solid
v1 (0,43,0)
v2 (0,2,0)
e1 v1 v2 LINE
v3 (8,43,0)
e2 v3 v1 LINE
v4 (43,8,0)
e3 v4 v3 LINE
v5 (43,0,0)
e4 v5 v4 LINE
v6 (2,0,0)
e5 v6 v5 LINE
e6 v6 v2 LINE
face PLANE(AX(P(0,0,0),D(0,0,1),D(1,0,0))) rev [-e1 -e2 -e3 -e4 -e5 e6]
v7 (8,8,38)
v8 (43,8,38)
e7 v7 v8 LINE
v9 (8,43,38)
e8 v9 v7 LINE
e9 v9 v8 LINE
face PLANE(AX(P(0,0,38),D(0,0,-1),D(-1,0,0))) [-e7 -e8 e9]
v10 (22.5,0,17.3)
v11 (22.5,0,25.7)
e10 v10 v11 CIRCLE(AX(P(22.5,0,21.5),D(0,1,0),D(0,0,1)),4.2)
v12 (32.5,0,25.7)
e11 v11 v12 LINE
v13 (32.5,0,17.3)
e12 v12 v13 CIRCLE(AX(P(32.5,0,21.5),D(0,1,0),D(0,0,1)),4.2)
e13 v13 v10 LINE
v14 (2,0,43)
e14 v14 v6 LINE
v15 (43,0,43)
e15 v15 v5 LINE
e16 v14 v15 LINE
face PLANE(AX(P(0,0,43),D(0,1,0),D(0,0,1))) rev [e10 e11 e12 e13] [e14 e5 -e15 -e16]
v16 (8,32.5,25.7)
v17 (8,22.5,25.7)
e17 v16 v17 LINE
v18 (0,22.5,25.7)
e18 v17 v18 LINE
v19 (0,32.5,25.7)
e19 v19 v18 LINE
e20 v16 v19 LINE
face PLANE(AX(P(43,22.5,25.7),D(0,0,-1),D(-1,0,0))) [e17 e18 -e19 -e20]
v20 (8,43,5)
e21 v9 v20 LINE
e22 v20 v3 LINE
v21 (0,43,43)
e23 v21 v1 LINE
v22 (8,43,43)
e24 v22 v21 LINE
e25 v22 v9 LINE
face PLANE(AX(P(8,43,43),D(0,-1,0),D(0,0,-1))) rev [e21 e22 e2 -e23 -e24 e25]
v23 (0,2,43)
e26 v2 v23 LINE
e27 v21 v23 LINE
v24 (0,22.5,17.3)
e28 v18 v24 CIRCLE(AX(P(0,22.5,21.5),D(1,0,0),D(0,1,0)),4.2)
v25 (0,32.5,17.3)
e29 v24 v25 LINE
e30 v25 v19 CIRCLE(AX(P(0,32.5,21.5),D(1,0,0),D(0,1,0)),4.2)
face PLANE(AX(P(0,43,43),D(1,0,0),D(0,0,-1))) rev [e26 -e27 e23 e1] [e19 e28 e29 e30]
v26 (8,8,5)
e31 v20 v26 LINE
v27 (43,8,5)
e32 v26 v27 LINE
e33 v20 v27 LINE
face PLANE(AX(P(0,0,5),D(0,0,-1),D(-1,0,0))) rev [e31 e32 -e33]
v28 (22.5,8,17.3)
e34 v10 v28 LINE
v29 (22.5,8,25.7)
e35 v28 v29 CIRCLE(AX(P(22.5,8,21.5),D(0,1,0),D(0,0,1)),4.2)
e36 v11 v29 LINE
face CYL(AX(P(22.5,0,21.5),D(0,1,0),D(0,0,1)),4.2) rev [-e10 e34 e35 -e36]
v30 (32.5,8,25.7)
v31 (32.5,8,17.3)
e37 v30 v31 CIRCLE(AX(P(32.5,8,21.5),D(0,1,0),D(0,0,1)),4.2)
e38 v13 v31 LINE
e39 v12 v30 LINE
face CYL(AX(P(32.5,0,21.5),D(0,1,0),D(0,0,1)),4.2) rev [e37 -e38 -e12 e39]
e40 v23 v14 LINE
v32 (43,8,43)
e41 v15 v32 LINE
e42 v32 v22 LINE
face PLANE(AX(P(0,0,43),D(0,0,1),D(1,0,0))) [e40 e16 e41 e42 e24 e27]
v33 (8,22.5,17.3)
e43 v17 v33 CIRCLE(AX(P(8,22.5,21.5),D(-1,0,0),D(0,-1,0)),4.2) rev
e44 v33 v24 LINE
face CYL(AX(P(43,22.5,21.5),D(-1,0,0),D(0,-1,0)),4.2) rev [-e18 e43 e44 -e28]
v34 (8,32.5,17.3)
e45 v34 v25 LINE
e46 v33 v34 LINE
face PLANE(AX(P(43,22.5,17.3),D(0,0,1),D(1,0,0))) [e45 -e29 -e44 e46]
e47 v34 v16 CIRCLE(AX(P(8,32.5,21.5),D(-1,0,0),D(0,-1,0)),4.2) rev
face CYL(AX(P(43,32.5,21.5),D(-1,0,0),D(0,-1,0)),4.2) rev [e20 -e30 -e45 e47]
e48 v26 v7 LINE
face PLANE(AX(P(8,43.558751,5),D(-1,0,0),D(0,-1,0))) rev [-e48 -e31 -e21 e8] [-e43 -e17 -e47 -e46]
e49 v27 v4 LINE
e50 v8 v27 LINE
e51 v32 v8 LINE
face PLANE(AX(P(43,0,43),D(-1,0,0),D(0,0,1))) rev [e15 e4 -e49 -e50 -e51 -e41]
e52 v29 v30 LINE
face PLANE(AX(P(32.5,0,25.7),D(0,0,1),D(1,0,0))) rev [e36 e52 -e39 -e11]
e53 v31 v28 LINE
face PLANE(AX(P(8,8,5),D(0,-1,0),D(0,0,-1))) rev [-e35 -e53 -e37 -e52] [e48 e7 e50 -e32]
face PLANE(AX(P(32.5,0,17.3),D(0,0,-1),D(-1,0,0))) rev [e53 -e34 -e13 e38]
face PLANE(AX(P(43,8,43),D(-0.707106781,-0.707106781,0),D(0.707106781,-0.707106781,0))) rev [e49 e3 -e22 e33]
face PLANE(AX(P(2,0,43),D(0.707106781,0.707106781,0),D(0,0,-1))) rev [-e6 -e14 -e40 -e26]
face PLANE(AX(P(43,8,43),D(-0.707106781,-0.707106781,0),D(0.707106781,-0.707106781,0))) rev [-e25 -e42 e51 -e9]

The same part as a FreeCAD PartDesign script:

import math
import FreeCAD as App
import Part
import Sketcher

V = App.Vector
Q = App.Units.Quantity


def edges_at(feature, points):
    """Names of the edges that pass closest to the given points."""
    edges = feature.Shape.Edges
    near = lambda p: min(range(len(edges)), key=lambda i: edges[i].distToShape(Part.Vertex(*p))[0])
    return sorted({f"Edge{near(p) + 1}" for p in points})

doc = App.newDocument("Part")
body = doc.addObject("PartDesign::Body", "Body")

sketch1 = body.newObject("Sketcher::SketchObject", "Sketch")
sketch1.AttachmentSupport = (doc.getObject("XY_Plane"), [""])
sketch1.MapMode = "FlatFace"
sketch1.addGeometry(Part.LineSegment(V(0, 43, 0), V(0, 0, 0)), False)
sketch1.addGeometry(Part.LineSegment(V(0, 0, 0), V(43, 0, 0)), False)
sketch1.addGeometry(Part.LineSegment(V(43, 0, 0), V(43, 8, 0)), False)
sketch1.addGeometry(Part.LineSegment(V(43, 8, 0), V(8, 43, 0)), False)
sketch1.addGeometry(Part.LineSegment(V(8, 43, 0), V(0, 43, 0)), False)
sketch1.addConstraint(Sketcher.Constraint("Coincident", 0, 2, 1, 1))
sketch1.addConstraint(Sketcher.Constraint("Coincident", 1, 2, 2, 1))
sketch1.addConstraint(Sketcher.Constraint("Coincident", 2, 2, 3, 1))
sketch1.addConstraint(Sketcher.Constraint("Coincident", 3, 2, 4, 1))
sketch1.addConstraint(Sketcher.Constraint("Coincident", 4, 2, 0, 1))
sketch1.addConstraint(Sketcher.Constraint("Vertical", 0))
sketch1.addConstraint(Sketcher.Constraint("Horizontal", 1))
sketch1.addConstraint(Sketcher.Constraint("Vertical", 2))
sketch1.addConstraint(Sketcher.Constraint("Horizontal", 4))
sketch1.addConstraint(Sketcher.Constraint("Coincident", 0, 2, -1, 1))
sketch1.addConstraint(Sketcher.Constraint("Equal", 1, 0))
sketch1.addConstraint(Sketcher.Constraint("Equal", 4, 2))
sketch1.addConstraint(Sketcher.Constraint("DistanceX", 1, 1, 1, 2, Q("43 mm")))
sketch1.addConstraint(Sketcher.Constraint("DistanceX", 4, 2, 4, 1, Q("8 mm")))
pad1 = body.newObject("PartDesign::Pad", "Pad")
pad1.Profile = sketch1
pad1.Length = 43

sketch2 = body.newObject("Sketcher::SketchObject", "Sketch001")
sketch2.AttachmentSupport = (doc.getObject("XY_Plane"), [""])
sketch2.MapMode = "FlatFace"
sketch2.AttachmentOffset = App.Placement(V(0, 0, 21.5), App.Rotation())
sketch2.addGeometry(Part.LineSegment(V(8, 44, 0), V(8, 8, 0)), False)
sketch2.addGeometry(Part.LineSegment(V(8, 8, 0), V(48, 8, 0)), False)
sketch2.addGeometry(Part.LineSegment(V(48, 8, 0), V(49, 42, 0)), False)
sketch2.addGeometry(Part.LineSegment(V(49, 42, 0), V(8, 44, 0)), False)
sketch2.addConstraint(Sketcher.Constraint("Coincident", 0, 2, 1, 1))
sketch2.addConstraint(Sketcher.Constraint("Coincident", 1, 2, 2, 1))
sketch2.addConstraint(Sketcher.Constraint("Coincident", 2, 2, 3, 1))
sketch2.addConstraint(Sketcher.Constraint("Coincident", 3, 2, 0, 1))
sketch2.addConstraint(Sketcher.Constraint("Vertical", 0))
sketch2.addConstraint(Sketcher.Constraint("Horizontal", 1))
sketch2.addConstraint(Sketcher.Constraint("Perpendicular", 2, 3))
sketch2.addConstraint(Sketcher.Constraint("DistanceX", -1, 1, 0, 2, Q("8 mm")))
sketch2.addConstraint(Sketcher.Constraint("DistanceY", -1, 1, 0, 2, Q("8 mm")))
sketch2.addConstraint(Sketcher.Constraint("Distance", 3, Q("41.478198 mm")))
sketch2.addConstraint(Sketcher.Constraint("DistanceY", 0, 2, 0, 1, Q("35.558751 mm")))
sketch2.addConstraint(Sketcher.Constraint("DistanceX", 1, 1, 1, 2, Q("39.774907 mm")))
pocket1 = body.newObject("PartDesign::Pocket", "Pocket")
pocket1.Profile = sketch2
pocket1.Length = 33
pocket1.Midplane = True

sketch3 = body.newObject("Sketcher::SketchObject", "Sketch002")
sketch3.AttachmentSupport = (doc.getObject("YZ_Plane"), [""])
sketch3.MapMode = "FlatFace"
sketch3.AttachmentOffset = App.Placement(V(0, 0, 8), App.Rotation())
sketch3.addGeometry(Part.LineSegment(V(32.5, 25.7, 0), V(22.5, 25.7, 0)), False)
sketch3.addGeometry(Part.ArcOfCircle(Part.Circle(V(22.5, 21.5, 0), V(0, 0, 1), 4.2), math.radians(90), math.radians(270)), False)
sketch3.addGeometry(Part.LineSegment(V(22.5, 17.3, 0), V(32.5, 17.3, 0)), False)
sketch3.addGeometry(Part.ArcOfCircle(Part.Circle(V(32.5, 21.5, 0), V(0, 0, 1), 4.2), math.radians(-90), math.radians(90)), False)
sketch3.addConstraint(Sketcher.Constraint("Tangent", 0, 2, 1, 1))
sketch3.addConstraint(Sketcher.Constraint("Tangent", 1, 2, 2, 1))
sketch3.addConstraint(Sketcher.Constraint("Tangent", 2, 2, 3, 1))
sketch3.addConstraint(Sketcher.Constraint("Tangent", 3, 2, 0, 1))
sketch3.addConstraint(Sketcher.Constraint("Horizontal", 0))
sketch3.addConstraint(Sketcher.Constraint("Horizontal", 2))
sketch3.addConstraint(Sketcher.Constraint("Radius", 1, Q("4.2 mm")))
sketch3.addConstraint(Sketcher.Constraint("DistanceX", 0, 2, 0, 1, Q("10 mm")))
sketch3.addConstraint(Sketcher.Constraint("DistanceX", -1, 1, 1, 3, Q("22.5 mm")))
sketch3.addConstraint(Sketcher.Constraint("DistanceY", -1, 1, 1, 3, Q("21.5 mm")))
pocket2 = body.newObject("PartDesign::Pocket", "Pocket001")
pocket2.Profile = sketch3
pocket2.Type = "ThroughAll"
pocket2.Midplane = True

sketch4 = body.newObject("Sketcher::SketchObject", "Sketch003")
sketch4.AttachmentSupport = (doc.getObject("XZ_Plane"), [""])
sketch4.MapMode = "FlatFace"
sketch4.AttachmentOffset = App.Placement(V(0, 0, -8), App.Rotation())
sketch4.addGeometry(Part.LineSegment(V(22.5, 25.7, 0), V(32.5, 25.7, 0)), False)
sketch4.addGeometry(Part.ArcOfCircle(Part.Circle(V(32.5, 21.5, 0), V(0, 0, 1), 4.2), math.radians(-90), math.radians(90)), False)
sketch4.addGeometry(Part.LineSegment(V(32.5, 17.3, 0), V(22.5, 17.3, 0)), False)
sketch4.addGeometry(Part.ArcOfCircle(Part.Circle(V(22.5, 21.5, 0), V(0, 0, 1), 4.2), math.radians(90), math.radians(270)), False)
sketch4.addConstraint(Sketcher.Constraint("Tangent", 0, 2, 1, 2))
sketch4.addConstraint(Sketcher.Constraint("Tangent", 1, 1, 2, 1))
sketch4.addConstraint(Sketcher.Constraint("Tangent", 2, 2, 3, 2))
sketch4.addConstraint(Sketcher.Constraint("Tangent", 3, 1, 0, 1))
sketch4.addConstraint(Sketcher.Constraint("Horizontal", 0))
sketch4.addConstraint(Sketcher.Constraint("Horizontal", 2))
sketch4.addConstraint(Sketcher.Constraint("Radius", 1, Q("4.2 mm")))
sketch4.addConstraint(Sketcher.Constraint("DistanceX", 0, 1, 0, 2, Q("10 mm")))
sketch4.addConstraint(Sketcher.Constraint("DistanceX", -1, 1, 1, 3, Q("32.5 mm")))
sketch4.addConstraint(Sketcher.Constraint("DistanceY", -1, 1, 1, 3, Q("21.5 mm")))
pocket3 = body.newObject("PartDesign::Pocket", "Pocket002")
pocket3.Profile = sketch4
pocket3.Type = "ThroughAll"
pocket3.Reversed = True
doc.recompute()

chamfer = body.newObject("PartDesign::Chamfer", "Chamfer")
chamfer.Base = (pocket3, edges_at(pocket3, [(0, 0, 21.5)]))
chamfer.Size = 2

doc.recompute()
